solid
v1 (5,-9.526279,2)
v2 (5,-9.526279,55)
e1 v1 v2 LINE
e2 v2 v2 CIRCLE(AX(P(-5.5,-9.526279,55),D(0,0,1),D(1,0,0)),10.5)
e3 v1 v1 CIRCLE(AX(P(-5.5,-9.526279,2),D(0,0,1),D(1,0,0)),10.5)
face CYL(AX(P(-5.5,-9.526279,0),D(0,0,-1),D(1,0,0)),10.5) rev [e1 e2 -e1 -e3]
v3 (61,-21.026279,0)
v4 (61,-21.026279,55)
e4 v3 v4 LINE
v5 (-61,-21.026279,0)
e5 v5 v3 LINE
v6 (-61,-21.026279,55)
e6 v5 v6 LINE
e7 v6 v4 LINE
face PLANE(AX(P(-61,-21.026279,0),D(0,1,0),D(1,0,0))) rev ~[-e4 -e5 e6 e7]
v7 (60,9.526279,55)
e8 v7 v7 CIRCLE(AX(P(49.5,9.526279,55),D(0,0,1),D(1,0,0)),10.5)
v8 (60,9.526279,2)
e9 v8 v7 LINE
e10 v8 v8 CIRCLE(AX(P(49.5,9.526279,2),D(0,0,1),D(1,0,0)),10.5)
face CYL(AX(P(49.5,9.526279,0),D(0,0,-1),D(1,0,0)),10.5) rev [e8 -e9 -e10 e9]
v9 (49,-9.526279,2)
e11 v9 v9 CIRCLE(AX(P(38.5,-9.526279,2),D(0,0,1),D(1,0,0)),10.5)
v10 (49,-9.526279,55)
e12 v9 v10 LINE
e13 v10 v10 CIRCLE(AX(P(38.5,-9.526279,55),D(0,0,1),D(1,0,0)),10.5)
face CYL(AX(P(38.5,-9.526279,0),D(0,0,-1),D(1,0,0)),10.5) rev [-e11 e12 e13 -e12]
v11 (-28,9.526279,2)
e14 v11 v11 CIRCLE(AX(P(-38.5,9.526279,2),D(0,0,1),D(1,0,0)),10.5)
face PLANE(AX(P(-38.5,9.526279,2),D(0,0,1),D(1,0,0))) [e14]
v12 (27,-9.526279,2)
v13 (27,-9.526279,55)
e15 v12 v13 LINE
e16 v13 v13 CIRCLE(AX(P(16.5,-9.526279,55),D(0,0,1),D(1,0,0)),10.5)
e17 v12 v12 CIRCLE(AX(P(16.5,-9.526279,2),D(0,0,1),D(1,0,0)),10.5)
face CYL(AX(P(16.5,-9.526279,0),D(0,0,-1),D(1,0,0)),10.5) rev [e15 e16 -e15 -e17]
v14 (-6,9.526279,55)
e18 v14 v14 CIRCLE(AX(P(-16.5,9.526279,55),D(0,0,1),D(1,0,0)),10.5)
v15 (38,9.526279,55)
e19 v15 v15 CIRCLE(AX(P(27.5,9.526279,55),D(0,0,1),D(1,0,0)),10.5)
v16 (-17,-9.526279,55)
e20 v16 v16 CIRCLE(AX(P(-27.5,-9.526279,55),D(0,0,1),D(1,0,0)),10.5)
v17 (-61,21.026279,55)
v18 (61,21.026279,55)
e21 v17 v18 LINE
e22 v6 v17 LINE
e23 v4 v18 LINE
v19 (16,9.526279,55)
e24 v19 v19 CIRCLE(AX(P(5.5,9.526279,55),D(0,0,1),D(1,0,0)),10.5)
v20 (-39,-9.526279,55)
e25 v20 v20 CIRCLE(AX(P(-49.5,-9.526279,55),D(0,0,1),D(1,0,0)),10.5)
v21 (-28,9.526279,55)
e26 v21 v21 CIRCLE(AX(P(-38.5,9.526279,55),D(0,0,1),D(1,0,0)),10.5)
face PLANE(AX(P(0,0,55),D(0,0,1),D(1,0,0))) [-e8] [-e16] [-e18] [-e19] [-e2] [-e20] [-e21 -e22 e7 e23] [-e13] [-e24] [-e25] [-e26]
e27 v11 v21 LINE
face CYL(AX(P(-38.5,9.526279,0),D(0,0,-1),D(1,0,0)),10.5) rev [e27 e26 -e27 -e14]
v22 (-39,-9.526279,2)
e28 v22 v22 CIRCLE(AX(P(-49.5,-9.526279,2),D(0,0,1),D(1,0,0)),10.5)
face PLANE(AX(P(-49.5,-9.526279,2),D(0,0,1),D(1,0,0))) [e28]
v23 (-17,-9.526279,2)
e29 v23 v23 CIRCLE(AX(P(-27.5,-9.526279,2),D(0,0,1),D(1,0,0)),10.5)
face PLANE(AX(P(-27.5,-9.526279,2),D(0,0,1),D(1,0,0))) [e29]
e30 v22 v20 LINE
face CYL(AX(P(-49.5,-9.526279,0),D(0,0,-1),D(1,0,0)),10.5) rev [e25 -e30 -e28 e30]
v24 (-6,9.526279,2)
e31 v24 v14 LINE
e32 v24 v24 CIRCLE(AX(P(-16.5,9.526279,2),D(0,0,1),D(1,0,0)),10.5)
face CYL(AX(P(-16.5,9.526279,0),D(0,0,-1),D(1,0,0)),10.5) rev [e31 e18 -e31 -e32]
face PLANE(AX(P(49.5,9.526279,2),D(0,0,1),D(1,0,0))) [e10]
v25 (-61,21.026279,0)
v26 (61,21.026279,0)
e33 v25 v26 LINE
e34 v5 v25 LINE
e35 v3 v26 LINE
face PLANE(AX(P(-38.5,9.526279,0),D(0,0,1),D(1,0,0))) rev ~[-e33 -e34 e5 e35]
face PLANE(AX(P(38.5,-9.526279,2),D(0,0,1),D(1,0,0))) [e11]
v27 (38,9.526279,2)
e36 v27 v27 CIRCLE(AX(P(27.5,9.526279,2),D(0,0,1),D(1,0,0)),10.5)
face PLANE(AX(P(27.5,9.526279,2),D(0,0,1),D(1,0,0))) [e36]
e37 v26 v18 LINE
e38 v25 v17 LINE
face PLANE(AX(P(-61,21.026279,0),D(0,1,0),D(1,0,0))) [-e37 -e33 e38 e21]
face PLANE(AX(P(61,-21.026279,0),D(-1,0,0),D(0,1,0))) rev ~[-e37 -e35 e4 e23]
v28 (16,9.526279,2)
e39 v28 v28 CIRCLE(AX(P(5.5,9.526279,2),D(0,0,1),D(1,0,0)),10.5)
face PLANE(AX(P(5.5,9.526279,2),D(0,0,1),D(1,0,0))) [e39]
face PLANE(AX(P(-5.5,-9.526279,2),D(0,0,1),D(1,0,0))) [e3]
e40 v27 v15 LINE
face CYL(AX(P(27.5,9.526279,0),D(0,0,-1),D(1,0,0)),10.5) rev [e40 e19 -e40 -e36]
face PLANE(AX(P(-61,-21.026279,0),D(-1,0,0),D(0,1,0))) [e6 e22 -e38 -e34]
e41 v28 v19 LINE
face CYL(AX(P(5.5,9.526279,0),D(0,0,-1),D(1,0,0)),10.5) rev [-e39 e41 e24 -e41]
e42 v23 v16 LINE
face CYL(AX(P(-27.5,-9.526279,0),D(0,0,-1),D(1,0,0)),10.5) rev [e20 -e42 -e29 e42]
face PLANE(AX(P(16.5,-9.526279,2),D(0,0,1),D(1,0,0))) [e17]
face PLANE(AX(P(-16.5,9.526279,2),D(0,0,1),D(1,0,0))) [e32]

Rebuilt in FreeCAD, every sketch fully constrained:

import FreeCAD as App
import Part
import Sketcher
Q = App.Units.Quantity


def add_polygon(sketch, points):
    """Adds a closed chain of lines whose ends are joined by coincident constraints."""
    first, n = sketch.GeometryCount, len(points)
    for a, b in zip(points, points[1:] + points[:1]):
        sketch.addGeometry(Part.LineSegment(App.Vector(*a, 0), App.Vector(*b, 0)), False)
    for i in range(n):
        sketch.addConstraint(Sketcher.Constraint("Coincident", first + i, 2, first + (i + 1) % n, 1))

doc = App.newDocument("Part")
body = doc.addObject("PartDesign::Body", "Body")

sketch1 = body.newObject("Sketcher::SketchObject", "Sketch")
sketch1.AttachmentSupport = (doc.getObject("XY_Plane"), [""])
sketch1.MapMode = "FlatFace"
add_polygon(sketch1, [(-61, 21), (-61, -21), (61, -21), (61, 21)])
sketch1.addGeometry(Part.Circle(App.Vector(-50, -10, 0), App.Vector(0, 0, 1), 10), False)
sketch1.addGeometry(Part.Circle(App.Vector(-28, -10, 0), App.Vector(0, 0, 1), 10), False)
sketch1.addGeometry(Part.Circle(App.Vector(-6, -10, 0), App.Vector(0, 0, 1), 10), False)
sketch1.addGeometry(Part.Circle(App.Vector(16, -10, 0), App.Vector(0, 0, 1), 10), False)
sketch1.addGeometry(Part.Circle(App.Vector(38, -10, 0), App.Vector(0, 0, 1), 10), False)
sketch1.addGeometry(Part.Circle(App.Vector(-38, 10, 0), App.Vector(0, 0, 1), 10), False)
sketch1.addGeometry(Part.Circle(App.Vector(-16, 10, 0), App.Vector(0, 0, 1), 10), False)
sketch1.addGeometry(Part.Circle(App.Vector(6, 10, 0), App.Vector(0, 0, 1), 10), False)
sketch1.addGeometry(Part.Circle(App.Vector(28, 10, 0), App.Vector(0, 0, 1), 10), False)
sketch1.addGeometry(Part.Circle(App.Vector(50, 10, 0), App.Vector(0, 0, 1), 10), False)
sketch1.addConstraint([
    Sketcher.Constraint("Vertical", 0),
    Sketcher.Constraint("Horizontal", 1),
    Sketcher.Constraint("Vertical", 2),
    Sketcher.Constraint("Horizontal", 3),
    Sketcher.Constraint("Equal", 4, 5),
    Sketcher.Constraint("Equal", 5, 6),
    Sketcher.Constraint("Equal", 6, 7),
    Sketcher.Constraint("Equal", 7, 8),
    Sketcher.Constraint("Equal", 8, 9),
    Sketcher.Constraint("Equal", 9, 10),
    Sketcher.Constraint("Equal", 10, 11),
    Sketcher.Constraint("Equal", 11, 12),
    Sketcher.Constraint("Equal", 12, 13),
    Sketcher.Constraint("Symmetric", 8, 3, 9, 3, -1, 1),
    Sketcher.Constraint("Symmetric", 7, 3, 10, 3, -1, 1),
    Sketcher.Constraint("Symmetric", 6, 3, 11, 3, -1, 1),
    Sketcher.Constraint("Symmetric", 5, 3, 12, 3, -1, 1),
    Sketcher.Constraint("Symmetric", 4, 3, 13, 3, -1, 1),
    Sketcher.Constraint("Symmetric", 0, 2, 2, 2, -1, 1),
    Sketcher.Constraint("Horizontal", 4, 3, 5, 3),
    Sketcher.Constraint("Horizontal", 5, 3, 6, 3),
    Sketcher.Constraint("Horizontal", 6, 3, 7, 3),
    Sketcher.Constraint("Horizontal", 7, 3, 8, 3),
    Sketcher.Constraint("Diameter", 4, Q("21 mm")),
    Sketcher.Constraint("DistanceX", 1, 1, 1, 2, Q("122 mm")),
    Sketcher.Constraint("DistanceX", 4, 3, 5, 3, Q("22 mm")),
    Sketcher.Constraint("DistanceX", 5, 3, 6, 3, Q("22 mm")),
    Sketcher.Constraint("DistanceX", 6, 3, 7, 3, Q("22 mm")),
    Sketcher.Constraint("DistanceX", 7, 3, 8, 3, Q("22 mm")),
    Sketcher.Constraint("DistanceX", 4, 3, 9, 3, Q("11 mm")),
    Sketcher.Constraint("DistanceY", 0, 2, 4, 3, Q("11.5 mm")),
    Sketcher.Constraint("DistanceY", 0, 2, 0, 1, Q("42.052558 mm")),
])
pad1 = body.newObject("PartDesign::Pad", "Pad")
pad1.Profile = sketch1
pad1.Length = 55

sketch2 = body.newObject("Sketcher::SketchObject", "Sketch001")
sketch2.AttachmentSupport = (doc.getObject("XY_Plane"), [""])
sketch2.MapMode = "FlatFace"
sketch2.addGeometry([
    Part.Circle(App.Vector(-38, 10, 0), App.Vector(0, 0, 1), 10),
    Part.Circle(App.Vector(-50, -10, 0), App.Vector(0, 0, 1), 10),
    Part.Circle(App.Vector(-28, -10, 0), App.Vector(0, 0, 1), 10),
    Part.Circle(App.Vector(-16, 10, 0), App.Vector(0, 0, 1), 10),
    Part.Circle(App.Vector(-6, -10, 0), App.Vector(0, 0, 1), 10),
    Part.Circle(App.Vector(6, 10, 0), App.Vector(0, 0, 1), 10),
    Part.Circle(App.Vector(16, -10, 0), App.Vector(0, 0, 1), 10),
    Part.Circle(App.Vector(28, 10, 0), App.Vector(0, 0, 1), 10),
    Part.Circle(App.Vector(38, -10, 0), App.Vector(0, 0, 1), 10),
    Part.Circle(App.Vector(50, 10, 0), App.Vector(0, 0, 1), 10),
], False)
sketch2.addConstraint([
    Sketcher.Constraint("Equal", 0, 1),
    Sketcher.Constraint("Equal", 1, 2),
    Sketcher.Constraint("Equal", 2, 3),
    Sketcher.Constraint("Equal", 3, 4),
    Sketcher.Constraint("Equal", 4, 5),
    Sketcher.Constraint("Equal", 5, 6),
    Sketcher.Constraint("Equal", 6, 7),
    Sketcher.Constraint("Equal", 7, 8),
    Sketcher.Constraint("Equal", 8, 9),
    Sketcher.Constraint("Symmetric", 4, 3, 5, 3, -1, 1),
    Sketcher.Constraint("Symmetric", 3, 3, 6, 3, -1, 1),
    Sketcher.Constraint("Symmetric", 2, 3, 7, 3, -1, 1),
    Sketcher.Constraint("Symmetric", 0, 3, 8, 3, -1, 1),
    Sketcher.Constraint("Symmetric", 1, 3, 9, 3, -1, 1),
    Sketcher.Constraint("Horizontal", 1, 3, 2, 3),
    Sketcher.Constraint("Horizontal", 0, 3, 3, 3),
    Sketcher.Constraint("Horizontal", 2, 3, 4, 3),
    Sketcher.Constraint("Horizontal", 3, 3, 5, 3),
    Sketcher.Constraint("Diameter", 0, Q("21 mm")),
    Sketcher.Constraint("DistanceX", 1, 3, 0, 3, Q("11 mm")),
    Sketcher.Constraint("DistanceX", 0, 3, 2, 3, Q("11 mm")),
    Sketcher.Constraint("DistanceX", 2, 3, 3, 3, Q("11 mm")),
    Sketcher.Constraint("DistanceX", 3, 3, 4, 3, Q("11 mm")),
    Sketcher.Constraint("DistanceX", 4, 3, 5, 3, Q("11 mm")),
    Sketcher.Constraint("DistanceY", -1, 1, 0, 3, Q("9.526279 mm")),
])
pad2 = body.newObject("PartDesign::Pad", "Pad001")
pad2.Profile = sketch2
pad2.Length = 2

doc.recompute()
